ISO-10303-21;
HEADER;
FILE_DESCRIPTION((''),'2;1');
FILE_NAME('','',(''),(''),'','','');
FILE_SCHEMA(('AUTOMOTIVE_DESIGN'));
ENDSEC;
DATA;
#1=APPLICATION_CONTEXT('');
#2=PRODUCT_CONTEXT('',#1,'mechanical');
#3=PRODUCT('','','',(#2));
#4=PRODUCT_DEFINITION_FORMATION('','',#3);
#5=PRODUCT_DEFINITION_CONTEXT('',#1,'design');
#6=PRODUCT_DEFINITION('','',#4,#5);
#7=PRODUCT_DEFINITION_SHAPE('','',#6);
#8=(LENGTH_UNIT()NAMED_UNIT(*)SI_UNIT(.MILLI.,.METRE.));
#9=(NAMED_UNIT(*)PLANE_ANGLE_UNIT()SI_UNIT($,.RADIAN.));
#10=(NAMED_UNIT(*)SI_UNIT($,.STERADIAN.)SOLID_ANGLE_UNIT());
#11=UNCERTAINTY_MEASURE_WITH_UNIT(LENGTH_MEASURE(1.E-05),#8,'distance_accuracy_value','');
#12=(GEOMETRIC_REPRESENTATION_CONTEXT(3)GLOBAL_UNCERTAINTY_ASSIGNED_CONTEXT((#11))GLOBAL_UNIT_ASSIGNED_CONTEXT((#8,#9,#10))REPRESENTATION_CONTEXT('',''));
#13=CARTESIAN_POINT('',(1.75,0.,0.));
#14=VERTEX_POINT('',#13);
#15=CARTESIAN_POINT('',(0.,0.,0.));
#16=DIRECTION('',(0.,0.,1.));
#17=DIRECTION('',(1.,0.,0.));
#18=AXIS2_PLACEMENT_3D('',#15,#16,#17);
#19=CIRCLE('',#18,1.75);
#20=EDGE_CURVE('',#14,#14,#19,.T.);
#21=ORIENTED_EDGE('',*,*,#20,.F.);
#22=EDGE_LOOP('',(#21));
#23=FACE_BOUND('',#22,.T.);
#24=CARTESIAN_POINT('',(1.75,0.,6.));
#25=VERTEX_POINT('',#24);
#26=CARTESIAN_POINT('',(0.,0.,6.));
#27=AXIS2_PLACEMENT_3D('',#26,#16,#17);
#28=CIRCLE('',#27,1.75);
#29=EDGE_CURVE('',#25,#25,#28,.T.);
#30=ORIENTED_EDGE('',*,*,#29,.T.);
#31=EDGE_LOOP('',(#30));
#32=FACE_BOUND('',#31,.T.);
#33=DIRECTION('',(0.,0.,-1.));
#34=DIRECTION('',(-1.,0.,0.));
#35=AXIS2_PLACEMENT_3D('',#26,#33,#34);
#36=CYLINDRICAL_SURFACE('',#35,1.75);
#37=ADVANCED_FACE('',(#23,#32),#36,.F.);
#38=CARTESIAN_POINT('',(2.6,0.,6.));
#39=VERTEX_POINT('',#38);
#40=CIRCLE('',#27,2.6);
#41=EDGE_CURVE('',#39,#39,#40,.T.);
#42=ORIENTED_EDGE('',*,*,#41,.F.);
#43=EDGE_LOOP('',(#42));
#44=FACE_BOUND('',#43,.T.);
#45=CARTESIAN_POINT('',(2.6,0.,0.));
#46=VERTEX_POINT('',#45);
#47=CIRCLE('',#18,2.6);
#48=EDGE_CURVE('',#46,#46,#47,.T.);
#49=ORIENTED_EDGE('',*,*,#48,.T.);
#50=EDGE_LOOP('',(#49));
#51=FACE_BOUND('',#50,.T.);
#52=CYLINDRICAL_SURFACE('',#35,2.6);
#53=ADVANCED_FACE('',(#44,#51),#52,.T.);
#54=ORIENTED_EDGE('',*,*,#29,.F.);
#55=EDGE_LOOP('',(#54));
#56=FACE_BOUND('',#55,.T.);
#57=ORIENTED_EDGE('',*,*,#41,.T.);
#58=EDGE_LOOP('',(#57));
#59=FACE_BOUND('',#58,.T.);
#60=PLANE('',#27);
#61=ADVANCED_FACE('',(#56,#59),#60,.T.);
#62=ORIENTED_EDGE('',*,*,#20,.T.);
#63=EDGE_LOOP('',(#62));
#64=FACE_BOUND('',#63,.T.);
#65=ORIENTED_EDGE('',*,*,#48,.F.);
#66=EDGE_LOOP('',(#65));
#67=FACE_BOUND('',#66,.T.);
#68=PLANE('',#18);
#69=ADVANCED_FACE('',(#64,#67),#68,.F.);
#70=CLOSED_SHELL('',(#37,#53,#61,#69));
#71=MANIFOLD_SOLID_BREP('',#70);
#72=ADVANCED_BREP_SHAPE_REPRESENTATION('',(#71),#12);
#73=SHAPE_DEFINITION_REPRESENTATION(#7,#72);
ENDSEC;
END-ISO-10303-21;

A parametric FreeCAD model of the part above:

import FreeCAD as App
import Part
import Sketcher

V = App.Vector
Q = App.Units.Quantity

doc = App.newDocument("Part")
body = doc.addObject("PartDesign::Body", "Body")

# Sketch on XY plane
sketch1 = body.newObject("Sketcher::SketchObject", "Sketch")
sketch1.AttachmentSupport = (doc.getObject("XY_Plane"), [""])
sketch1.MapMode = "FlatFace"
sketch1.addGeometry([
    Part.Circle(V(0, 0, 0), V(0, 0, 1), 2.6),
    Part.Circle(V(0, 0, 0), V(0, 0, 1), 1.8),
], False)
sketch1.addConstraint([
    Sketcher.Constraint("Coincident", 0, 3, -1, 1),
    Sketcher.Constraint("Coincident", 1, 3, -1, 1),
    Sketcher.Constraint("Diameter", 0, Q("5.2 mm")),
    Sketcher.Constraint("Diameter", 1, Q("3.5 mm")),
])
pad1 = body.newObject("PartDesign::Pad", "Pad")
pad1.Profile = sketch1
pad1.Length = 6

doc.recompute()
